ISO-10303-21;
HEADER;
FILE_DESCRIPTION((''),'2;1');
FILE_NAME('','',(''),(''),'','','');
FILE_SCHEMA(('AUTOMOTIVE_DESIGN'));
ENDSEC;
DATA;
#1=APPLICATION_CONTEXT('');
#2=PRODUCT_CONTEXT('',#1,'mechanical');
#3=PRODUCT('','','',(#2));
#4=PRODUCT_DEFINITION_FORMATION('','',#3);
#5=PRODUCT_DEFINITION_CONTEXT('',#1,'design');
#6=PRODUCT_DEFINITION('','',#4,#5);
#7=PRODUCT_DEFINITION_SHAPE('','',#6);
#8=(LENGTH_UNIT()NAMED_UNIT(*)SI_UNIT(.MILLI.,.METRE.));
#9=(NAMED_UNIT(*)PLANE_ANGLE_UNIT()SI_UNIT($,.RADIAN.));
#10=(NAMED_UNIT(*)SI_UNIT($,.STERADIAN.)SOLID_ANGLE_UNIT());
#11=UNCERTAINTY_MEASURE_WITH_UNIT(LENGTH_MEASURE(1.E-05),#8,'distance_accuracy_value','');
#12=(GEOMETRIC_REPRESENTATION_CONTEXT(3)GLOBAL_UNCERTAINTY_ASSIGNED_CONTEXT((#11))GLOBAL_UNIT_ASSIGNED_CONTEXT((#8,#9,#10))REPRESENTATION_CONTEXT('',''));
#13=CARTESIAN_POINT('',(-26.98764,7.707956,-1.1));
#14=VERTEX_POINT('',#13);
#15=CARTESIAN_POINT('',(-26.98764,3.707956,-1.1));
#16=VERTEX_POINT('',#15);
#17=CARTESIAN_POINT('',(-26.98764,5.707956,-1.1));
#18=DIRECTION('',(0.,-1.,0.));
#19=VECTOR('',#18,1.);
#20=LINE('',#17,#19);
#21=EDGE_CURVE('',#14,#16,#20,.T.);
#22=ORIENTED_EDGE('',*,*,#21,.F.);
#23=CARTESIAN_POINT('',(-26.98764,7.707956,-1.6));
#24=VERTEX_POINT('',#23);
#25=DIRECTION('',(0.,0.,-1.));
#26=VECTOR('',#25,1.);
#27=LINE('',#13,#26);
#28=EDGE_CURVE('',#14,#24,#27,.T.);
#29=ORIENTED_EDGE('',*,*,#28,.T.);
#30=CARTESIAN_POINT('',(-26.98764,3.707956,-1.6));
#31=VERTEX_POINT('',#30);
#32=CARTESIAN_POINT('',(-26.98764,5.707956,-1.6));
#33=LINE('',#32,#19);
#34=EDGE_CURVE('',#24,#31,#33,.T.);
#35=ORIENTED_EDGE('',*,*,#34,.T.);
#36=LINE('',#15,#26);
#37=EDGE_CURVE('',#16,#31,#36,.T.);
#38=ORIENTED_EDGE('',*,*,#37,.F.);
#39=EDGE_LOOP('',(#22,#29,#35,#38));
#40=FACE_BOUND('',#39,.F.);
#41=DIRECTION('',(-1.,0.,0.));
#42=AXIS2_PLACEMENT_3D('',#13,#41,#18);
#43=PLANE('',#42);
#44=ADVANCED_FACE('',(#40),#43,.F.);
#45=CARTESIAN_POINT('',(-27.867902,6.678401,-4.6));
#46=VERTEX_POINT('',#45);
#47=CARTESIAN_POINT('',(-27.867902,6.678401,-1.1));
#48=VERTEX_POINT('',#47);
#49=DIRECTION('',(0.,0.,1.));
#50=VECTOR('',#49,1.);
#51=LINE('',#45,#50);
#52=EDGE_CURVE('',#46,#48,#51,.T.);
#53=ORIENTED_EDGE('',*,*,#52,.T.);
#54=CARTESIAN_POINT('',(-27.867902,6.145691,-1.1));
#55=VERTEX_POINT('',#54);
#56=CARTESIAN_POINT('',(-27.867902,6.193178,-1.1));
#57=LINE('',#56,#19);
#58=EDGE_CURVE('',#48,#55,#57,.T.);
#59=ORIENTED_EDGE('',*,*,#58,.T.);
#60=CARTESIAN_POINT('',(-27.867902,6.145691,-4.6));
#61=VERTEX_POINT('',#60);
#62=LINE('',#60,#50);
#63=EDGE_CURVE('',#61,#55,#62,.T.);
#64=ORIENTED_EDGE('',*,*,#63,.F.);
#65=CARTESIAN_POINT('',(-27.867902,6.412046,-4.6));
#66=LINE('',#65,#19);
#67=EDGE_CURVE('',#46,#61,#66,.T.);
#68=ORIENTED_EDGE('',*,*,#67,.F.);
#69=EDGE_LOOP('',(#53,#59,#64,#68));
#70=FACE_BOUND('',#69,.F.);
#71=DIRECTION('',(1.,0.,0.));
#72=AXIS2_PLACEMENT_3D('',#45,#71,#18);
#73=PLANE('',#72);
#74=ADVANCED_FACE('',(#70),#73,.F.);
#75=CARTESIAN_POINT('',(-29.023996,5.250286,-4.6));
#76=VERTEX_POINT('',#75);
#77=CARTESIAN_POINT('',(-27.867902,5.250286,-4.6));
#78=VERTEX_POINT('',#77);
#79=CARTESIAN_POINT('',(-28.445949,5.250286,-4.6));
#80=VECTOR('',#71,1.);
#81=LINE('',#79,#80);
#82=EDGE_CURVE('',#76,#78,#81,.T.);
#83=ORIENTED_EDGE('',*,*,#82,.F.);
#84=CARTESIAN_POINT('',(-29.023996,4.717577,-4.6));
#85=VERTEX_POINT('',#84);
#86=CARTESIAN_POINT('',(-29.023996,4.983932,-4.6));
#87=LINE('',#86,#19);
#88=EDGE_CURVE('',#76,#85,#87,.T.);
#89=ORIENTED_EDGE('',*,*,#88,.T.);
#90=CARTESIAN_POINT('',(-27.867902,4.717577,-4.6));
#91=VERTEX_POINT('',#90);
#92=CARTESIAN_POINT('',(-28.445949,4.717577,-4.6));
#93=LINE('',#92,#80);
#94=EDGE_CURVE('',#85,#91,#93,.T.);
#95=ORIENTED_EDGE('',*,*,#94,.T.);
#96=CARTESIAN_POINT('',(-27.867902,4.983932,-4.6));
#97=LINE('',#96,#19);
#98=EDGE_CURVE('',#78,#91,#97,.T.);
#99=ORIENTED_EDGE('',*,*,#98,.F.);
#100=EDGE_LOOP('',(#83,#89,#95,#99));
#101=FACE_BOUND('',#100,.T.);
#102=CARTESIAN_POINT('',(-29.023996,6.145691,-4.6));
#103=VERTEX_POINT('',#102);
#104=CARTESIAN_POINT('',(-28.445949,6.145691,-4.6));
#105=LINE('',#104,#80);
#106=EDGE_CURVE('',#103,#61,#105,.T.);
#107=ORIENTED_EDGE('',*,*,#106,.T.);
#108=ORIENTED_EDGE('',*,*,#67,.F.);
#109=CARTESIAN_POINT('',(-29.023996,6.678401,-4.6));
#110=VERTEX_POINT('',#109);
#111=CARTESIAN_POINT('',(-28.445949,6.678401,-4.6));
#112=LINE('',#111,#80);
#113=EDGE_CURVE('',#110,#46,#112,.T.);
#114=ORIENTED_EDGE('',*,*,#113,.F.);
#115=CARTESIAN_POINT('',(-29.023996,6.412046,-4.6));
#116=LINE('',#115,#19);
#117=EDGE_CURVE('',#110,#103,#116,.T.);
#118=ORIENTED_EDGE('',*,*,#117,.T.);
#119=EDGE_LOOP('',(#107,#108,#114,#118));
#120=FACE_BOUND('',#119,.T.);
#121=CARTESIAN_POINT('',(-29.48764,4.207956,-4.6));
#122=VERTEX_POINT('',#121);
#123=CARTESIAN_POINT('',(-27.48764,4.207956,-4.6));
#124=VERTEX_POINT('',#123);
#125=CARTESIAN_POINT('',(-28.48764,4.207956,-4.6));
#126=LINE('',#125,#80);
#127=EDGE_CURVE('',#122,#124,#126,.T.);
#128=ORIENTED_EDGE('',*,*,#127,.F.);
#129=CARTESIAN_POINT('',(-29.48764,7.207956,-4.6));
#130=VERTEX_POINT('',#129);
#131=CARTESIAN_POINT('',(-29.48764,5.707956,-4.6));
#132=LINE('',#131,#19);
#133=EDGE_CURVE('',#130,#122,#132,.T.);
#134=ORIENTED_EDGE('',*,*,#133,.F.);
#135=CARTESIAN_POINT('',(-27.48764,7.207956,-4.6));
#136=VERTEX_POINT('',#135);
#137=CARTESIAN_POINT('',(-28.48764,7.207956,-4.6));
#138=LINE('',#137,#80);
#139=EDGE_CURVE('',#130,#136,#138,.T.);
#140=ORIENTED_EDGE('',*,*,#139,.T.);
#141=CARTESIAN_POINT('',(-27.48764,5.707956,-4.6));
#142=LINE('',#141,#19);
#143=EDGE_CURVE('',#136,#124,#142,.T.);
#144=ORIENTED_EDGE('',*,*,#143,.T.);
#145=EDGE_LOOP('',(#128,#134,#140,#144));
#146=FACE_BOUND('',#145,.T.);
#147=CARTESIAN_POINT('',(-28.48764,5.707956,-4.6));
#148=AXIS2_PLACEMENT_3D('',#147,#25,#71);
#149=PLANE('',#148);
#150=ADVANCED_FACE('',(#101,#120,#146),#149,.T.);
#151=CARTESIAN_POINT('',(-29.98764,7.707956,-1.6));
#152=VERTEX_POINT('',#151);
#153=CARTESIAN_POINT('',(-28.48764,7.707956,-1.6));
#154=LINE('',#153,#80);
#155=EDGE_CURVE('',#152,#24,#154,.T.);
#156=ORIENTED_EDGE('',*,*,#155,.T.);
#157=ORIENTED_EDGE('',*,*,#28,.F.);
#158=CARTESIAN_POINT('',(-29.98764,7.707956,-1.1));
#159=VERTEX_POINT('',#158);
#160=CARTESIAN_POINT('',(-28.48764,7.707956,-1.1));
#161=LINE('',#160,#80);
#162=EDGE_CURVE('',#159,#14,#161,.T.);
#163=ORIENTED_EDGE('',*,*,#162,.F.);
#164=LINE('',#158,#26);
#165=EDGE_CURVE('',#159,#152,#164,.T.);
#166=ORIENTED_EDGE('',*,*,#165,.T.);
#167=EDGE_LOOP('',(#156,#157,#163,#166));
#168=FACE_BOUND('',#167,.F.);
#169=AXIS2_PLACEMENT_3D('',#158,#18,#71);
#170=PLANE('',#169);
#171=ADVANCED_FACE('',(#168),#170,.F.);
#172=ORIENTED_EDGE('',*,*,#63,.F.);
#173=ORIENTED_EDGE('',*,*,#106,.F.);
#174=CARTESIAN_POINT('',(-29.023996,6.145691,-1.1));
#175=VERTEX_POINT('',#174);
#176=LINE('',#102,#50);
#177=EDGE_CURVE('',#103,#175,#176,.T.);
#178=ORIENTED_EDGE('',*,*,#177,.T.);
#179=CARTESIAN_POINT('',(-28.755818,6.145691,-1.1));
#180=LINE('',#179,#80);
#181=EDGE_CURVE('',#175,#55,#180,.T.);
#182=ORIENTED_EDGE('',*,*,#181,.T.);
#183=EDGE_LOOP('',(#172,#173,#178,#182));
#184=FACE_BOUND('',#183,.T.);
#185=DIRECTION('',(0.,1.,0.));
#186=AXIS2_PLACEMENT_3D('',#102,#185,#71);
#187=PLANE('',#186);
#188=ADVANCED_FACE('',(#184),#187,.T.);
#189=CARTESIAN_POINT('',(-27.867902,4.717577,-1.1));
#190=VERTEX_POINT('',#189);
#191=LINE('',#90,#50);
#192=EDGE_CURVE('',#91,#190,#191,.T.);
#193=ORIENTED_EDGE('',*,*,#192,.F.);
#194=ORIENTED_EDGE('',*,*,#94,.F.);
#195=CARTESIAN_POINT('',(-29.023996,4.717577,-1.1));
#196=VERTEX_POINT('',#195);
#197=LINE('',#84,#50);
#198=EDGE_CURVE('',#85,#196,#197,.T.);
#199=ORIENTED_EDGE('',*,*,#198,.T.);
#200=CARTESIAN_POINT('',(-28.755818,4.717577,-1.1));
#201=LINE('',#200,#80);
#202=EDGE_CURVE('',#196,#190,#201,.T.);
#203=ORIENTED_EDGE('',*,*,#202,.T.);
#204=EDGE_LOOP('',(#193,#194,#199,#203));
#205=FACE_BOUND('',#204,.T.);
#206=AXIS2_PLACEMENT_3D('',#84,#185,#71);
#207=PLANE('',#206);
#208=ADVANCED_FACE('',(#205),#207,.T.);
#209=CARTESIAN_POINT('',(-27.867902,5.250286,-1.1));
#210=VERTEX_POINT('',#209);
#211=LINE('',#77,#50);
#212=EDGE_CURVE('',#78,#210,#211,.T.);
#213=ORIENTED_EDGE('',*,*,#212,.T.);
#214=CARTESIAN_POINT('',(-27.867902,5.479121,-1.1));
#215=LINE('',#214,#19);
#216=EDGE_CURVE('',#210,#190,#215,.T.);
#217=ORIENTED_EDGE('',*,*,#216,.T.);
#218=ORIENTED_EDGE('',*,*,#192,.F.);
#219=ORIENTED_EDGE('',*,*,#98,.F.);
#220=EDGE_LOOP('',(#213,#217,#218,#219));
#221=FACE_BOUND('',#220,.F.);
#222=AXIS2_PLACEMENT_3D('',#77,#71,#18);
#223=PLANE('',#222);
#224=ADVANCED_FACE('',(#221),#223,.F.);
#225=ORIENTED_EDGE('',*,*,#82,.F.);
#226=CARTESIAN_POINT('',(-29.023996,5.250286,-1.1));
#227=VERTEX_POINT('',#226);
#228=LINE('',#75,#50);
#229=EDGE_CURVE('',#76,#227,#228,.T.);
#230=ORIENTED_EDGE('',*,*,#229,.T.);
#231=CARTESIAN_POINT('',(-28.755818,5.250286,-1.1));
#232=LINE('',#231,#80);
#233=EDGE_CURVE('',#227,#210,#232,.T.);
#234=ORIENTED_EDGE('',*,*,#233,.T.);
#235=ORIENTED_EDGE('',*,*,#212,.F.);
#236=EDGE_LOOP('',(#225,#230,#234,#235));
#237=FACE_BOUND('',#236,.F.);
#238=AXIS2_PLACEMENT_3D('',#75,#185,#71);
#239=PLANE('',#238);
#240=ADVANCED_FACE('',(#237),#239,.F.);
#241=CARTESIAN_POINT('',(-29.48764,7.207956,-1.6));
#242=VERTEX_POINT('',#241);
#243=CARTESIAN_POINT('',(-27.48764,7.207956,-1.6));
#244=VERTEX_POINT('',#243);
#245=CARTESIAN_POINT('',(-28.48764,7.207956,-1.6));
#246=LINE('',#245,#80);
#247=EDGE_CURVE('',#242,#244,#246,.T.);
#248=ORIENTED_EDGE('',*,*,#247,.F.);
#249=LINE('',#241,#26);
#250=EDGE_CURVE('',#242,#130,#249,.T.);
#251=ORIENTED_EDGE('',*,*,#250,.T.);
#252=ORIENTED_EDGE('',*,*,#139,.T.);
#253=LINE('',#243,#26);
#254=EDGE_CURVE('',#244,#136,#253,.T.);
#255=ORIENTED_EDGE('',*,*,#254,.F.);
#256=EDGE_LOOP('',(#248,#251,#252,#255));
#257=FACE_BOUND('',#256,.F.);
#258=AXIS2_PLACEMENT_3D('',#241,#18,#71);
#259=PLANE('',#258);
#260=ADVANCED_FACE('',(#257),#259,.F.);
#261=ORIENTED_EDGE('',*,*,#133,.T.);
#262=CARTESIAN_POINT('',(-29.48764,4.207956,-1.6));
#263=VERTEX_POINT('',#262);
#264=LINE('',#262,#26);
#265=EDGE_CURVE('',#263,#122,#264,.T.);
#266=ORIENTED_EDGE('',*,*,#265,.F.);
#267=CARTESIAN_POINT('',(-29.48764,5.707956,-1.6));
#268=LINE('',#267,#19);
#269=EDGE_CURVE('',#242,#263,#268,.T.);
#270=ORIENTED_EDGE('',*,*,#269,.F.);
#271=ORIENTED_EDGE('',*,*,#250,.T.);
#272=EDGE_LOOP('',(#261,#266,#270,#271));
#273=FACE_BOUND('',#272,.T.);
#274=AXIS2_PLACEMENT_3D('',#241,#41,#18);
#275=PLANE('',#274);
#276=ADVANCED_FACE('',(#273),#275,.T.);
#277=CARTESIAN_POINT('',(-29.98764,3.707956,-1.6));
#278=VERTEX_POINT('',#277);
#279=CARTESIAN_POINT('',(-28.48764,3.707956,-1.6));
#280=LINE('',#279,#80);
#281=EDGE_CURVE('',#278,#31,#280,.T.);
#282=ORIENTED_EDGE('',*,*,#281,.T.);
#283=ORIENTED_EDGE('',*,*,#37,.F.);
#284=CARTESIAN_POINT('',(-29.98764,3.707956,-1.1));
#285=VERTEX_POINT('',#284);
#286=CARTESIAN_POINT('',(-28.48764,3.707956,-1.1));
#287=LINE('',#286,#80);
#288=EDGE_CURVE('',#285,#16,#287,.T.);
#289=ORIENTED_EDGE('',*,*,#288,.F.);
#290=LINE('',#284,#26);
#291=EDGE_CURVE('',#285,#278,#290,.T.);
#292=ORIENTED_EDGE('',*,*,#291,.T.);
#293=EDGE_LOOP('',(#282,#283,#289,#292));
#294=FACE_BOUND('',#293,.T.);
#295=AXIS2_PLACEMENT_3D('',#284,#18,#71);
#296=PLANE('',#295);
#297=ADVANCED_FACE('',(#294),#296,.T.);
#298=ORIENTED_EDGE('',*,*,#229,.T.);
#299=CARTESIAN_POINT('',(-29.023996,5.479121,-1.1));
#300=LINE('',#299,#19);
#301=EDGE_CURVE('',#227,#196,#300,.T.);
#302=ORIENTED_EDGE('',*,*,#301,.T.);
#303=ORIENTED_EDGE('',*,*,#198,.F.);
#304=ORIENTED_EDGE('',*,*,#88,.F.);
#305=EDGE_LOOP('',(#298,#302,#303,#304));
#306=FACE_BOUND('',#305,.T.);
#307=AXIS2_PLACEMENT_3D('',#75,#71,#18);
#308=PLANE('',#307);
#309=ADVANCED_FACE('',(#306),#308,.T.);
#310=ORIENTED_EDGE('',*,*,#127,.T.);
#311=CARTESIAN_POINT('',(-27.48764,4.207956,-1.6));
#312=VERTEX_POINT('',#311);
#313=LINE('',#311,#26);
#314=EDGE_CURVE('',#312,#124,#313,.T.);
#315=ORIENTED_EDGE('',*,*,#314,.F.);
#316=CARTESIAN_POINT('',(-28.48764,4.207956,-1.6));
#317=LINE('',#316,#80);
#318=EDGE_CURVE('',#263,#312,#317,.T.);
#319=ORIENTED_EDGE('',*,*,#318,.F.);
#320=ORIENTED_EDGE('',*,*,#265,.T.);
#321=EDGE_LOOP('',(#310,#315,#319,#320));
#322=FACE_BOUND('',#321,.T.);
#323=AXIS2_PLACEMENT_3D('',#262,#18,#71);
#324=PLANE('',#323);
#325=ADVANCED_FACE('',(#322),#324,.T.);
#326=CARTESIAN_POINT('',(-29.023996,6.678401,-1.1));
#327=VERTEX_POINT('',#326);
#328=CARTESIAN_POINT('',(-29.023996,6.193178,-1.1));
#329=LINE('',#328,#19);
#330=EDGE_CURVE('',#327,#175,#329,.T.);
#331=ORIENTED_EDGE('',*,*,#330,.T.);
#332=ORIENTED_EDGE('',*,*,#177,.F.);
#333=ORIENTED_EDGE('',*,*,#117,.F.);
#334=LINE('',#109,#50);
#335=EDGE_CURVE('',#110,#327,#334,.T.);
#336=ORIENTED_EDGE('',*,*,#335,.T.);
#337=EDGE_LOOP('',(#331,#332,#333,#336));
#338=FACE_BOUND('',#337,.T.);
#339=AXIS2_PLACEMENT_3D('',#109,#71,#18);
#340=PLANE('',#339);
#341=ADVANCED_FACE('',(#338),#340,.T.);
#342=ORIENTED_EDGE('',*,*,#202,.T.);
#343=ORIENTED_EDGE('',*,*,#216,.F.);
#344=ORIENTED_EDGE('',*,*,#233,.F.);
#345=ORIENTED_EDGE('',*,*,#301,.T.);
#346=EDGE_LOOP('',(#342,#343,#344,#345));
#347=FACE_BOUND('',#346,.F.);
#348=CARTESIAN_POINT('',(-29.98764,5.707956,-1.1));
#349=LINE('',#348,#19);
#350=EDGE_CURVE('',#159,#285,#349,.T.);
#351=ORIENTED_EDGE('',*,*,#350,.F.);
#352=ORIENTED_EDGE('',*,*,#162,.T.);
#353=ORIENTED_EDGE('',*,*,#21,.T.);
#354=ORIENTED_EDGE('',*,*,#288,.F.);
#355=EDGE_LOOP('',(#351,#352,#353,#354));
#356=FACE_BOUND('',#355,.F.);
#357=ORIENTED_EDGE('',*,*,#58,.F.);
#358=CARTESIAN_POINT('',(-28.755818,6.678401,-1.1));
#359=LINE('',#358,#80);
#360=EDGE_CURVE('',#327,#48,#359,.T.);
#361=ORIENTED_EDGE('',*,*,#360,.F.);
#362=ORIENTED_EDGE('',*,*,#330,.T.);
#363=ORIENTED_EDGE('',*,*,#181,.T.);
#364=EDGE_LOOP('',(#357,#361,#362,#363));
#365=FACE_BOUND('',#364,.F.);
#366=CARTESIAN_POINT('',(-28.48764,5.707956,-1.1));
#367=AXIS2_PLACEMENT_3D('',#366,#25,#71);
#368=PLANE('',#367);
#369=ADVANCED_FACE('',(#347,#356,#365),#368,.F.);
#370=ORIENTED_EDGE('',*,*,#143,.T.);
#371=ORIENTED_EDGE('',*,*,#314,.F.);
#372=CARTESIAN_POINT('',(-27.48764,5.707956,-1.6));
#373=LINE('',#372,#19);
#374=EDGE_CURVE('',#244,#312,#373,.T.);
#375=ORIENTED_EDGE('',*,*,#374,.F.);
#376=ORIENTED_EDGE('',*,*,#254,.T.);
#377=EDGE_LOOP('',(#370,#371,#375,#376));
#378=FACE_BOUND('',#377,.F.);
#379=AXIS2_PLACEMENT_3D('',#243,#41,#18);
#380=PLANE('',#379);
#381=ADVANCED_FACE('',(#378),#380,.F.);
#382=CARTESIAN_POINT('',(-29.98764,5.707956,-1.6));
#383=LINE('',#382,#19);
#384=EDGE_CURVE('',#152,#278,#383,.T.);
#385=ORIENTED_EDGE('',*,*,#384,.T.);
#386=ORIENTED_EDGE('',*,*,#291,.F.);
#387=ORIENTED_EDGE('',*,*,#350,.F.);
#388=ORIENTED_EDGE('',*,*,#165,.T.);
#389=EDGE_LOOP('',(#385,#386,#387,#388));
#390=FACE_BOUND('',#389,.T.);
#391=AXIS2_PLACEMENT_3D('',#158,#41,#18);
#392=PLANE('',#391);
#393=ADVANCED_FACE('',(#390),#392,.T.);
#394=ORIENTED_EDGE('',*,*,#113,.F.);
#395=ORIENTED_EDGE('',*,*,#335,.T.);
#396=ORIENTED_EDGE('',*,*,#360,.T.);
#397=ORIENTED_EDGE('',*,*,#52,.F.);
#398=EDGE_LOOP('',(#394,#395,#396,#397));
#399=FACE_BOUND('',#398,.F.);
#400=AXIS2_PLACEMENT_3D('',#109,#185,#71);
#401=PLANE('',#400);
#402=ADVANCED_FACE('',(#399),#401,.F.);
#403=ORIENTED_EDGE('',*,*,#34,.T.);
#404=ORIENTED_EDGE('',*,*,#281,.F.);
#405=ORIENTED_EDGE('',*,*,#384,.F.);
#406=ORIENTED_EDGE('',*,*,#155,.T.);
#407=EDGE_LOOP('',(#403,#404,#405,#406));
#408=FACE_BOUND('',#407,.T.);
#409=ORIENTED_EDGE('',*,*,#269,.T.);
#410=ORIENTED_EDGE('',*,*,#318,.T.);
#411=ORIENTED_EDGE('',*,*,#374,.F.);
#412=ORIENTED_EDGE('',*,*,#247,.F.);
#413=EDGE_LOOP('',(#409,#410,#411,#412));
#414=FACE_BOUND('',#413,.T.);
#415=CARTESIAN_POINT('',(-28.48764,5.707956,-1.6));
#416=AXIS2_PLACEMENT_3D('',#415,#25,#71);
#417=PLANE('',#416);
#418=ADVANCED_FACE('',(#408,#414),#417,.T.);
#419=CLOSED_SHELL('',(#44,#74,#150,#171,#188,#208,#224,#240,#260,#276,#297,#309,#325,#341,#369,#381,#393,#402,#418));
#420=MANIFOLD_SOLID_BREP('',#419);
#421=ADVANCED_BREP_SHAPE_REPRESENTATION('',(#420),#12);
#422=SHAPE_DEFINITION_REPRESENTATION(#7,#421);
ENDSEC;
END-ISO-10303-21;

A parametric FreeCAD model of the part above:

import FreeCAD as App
import Part
import Sketcher


def add_polygon(sketch, points):
    """Adds a closed chain of lines whose ends are joined by coincident constraints."""
    first, n = sketch.GeometryCount, len(points)
    for a, b in zip(points, points[1:] + points[:1]):
        sketch.addGeometry(Part.LineSegment(App.Vector(*a, 0), App.Vector(*b, 0)), False)
    for i in range(n):
        sketch.addConstraint(Sketcher.Constraint("Coincident", first + i, 2, first + (i + 1) % n, 1))

doc = App.newDocument("Part")
body = doc.addObject("PartDesign::Body", "Body")

# Sketch on XY plane
sketch1 = doc.addObject("Sketcher::SketchObject", "Sketch")
body.addObject(sketch1)
sketch1.AttachmentSupport = (doc.XY_Plane, [""])
sketch1.MapMode = "FlatFace"
sketch1.AttachmentOffset = App.Placement(App.Vector(0, 0, -1.1), App.Rotation())
add_polygon(sketch1, [(-30, 3.7), (-30, 7.7), (-27, 7.7), (-27, 3.7)])  # lines 0-3
sketch1.addConstraint([
    Sketcher.Constraint("Vertical", 0),
    Sketcher.Constraint("Horizontal", 1),
    Sketcher.Constraint("Vertical", 2),
    Sketcher.Constraint("Horizontal", 3),
    Sketcher.Constraint("DistanceX", 1, 1, 1, 2, 3.0),
    Sketcher.Constraint("DistanceY", 0, 1, 0, 2, 4.0),
    Sketcher.Constraint("DistanceX", 0, 2, -1, 1, 29.98764),
    Sketcher.Constraint("DistanceY", -1, 1, 0, 2, 7.707956),
])
pad1 = doc.addObject("PartDesign::Pad", "Pad")
body.addObject(pad1)
pad1.Profile = sketch1
pad1.Length = 0.5
pad1.Reversed = True

# Sketch on XY plane
sketch2 = doc.addObject("Sketcher::SketchObject", "Sketch001")
body.addObject(sketch2)
sketch2.AttachmentSupport = (doc.XY_Plane, [""])
sketch2.MapMode = "FlatFace"
sketch2.AttachmentOffset = App.Placement(App.Vector(0, 0, -1.6), App.Rotation())
add_polygon(sketch2, [(-29.5, 4.2), (-29.5, 7.2), (-27.5, 7.2), (-27.5, 4.2)])  # lines 0-3
sketch2.addConstraint([
    Sketcher.Constraint("Vertical", 0),
    Sketcher.Constraint("Horizontal", 1),
    Sketcher.Constraint("Vertical", 2),
    Sketcher.Constraint("Horizontal", 3),
    Sketcher.Constraint("DistanceX", 1, 1, 1, 2, 2.0),
    Sketcher.Constraint("DistanceY", 0, 1, 0, 2, 3.0),
    Sketcher.Constraint("DistanceX", 0, 2, -1, 1, 29.48764),
    Sketcher.Constraint("DistanceY", -1, 1, 0, 2, 7.207956),
])
pad2 = doc.addObject("PartDesign::Pad", "Pad001")
body.addObject(pad2)
pad2.Profile = sketch2
pad2.Length = 3
pad2.Reversed = True

# Sketch on XY plane
sketch3 = doc.addObject("Sketcher::SketchObject", "Sketch002")
body.addObject(sketch3)
sketch3.AttachmentSupport = (doc.XY_Plane, [""])
sketch3.MapMode = "FlatFace"
sketch3.AttachmentOffset = App.Placement(App.Vector(0, 0, -4.6), App.Rotation())
add_polygon(sketch3, [(-29, 4.7), (-29, 5.3), (-27.9, 5.3), (-27.9, 4.7)])  # lines 0-3
add_polygon(sketch3, [(-29, 6.1), (-29, 6.7), (-27.9, 6.7), (-27.9, 6.1)])  # lines 4-7
sketch3.addConstraint([
    Sketcher.Constraint("Vertical", 0),
    Sketcher.Constraint("Horizontal", 1),
    Sketcher.Constraint("Vertical", 2),
    Sketcher.Constraint("Horizontal", 3),
    Sketcher.Constraint("Vertical", 4),
    Sketcher.Constraint("Horizontal", 5),
    Sketcher.Constraint("Vertical", 6),
    Sketcher.Constraint("Horizontal", 7),
    Sketcher.Constraint("Vertical", 3, 2, 4, 2),
    Sketcher.Constraint("Vertical", 2, 2, 5, 2),
    Sketcher.Constraint("Equal", 2, 4),
    Sketcher.Constraint("DistanceY", 0, 1, 0, 2, 0.532709),
    Sketcher.Constraint("DistanceY", -1, 1, 4, 2, 6.678401),
    Sketcher.Constraint("DistanceX", 1, 1, 1, 2, 1.156093),
    Sketcher.Constraint("DistanceX", 0, 2, -1, 1, 29.023996),
    Sketcher.Constraint("DistanceY", -1, 1, 0, 2, 5.250286),
])
pocket1 = doc.addObject("PartDesign::Pocket", "Pocket")
body.addObject(pocket1)
pocket1.Profile = sketch3
pocket1.Length = 5
pocket1.Reversed = True

doc.recompute()
